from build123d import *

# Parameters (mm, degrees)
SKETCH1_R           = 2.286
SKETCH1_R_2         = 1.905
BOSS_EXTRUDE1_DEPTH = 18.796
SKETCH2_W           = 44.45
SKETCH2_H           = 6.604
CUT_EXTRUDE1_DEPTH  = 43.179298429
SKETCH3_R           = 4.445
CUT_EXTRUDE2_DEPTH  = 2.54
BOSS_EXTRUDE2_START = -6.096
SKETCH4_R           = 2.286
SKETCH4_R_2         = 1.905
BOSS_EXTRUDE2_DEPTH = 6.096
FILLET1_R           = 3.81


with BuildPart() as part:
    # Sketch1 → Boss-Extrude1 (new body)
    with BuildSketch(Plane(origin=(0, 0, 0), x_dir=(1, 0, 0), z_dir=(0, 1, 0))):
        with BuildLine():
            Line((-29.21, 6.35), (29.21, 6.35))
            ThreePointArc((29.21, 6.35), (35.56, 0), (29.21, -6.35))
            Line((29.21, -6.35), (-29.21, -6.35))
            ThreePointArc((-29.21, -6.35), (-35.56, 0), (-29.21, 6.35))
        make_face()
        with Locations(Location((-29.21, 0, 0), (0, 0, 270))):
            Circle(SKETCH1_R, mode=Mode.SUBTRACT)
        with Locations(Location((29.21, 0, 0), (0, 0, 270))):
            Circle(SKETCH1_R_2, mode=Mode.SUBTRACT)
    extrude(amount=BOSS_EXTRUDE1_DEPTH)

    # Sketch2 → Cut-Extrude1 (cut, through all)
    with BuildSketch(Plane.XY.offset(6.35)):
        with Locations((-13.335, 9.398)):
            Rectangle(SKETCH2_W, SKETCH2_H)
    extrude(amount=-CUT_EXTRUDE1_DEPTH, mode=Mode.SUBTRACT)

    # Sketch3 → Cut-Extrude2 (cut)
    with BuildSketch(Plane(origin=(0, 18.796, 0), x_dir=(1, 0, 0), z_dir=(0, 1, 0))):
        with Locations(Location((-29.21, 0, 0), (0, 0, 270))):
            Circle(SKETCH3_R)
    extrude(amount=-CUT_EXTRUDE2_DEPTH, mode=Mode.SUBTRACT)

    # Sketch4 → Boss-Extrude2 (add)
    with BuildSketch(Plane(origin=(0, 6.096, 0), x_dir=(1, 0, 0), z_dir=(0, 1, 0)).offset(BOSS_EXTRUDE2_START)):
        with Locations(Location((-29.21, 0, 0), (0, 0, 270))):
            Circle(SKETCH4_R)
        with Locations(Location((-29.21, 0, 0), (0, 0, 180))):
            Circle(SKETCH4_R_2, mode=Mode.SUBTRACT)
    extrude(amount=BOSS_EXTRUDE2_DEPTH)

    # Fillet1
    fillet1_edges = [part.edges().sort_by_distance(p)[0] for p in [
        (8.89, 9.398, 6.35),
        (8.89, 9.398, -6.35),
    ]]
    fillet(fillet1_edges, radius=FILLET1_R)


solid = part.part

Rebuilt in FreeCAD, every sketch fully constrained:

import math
import FreeCAD as App
import Part
import Sketcher
from FreeCAD import Vector
Q = App.Units.Quantity


def edges_at(feature, points):
    """Names of the edges that pass closest to the given points."""
    edges = feature.Shape.Edges
    near = lambda p: min(range(len(edges)), key=lambda i: edges[i].distToShape(Part.Vertex(*p))[0])
    return sorted({f"Edge{near(p) + 1}" for p in points})

doc = App.newDocument("Part")
params = doc.addObject("Spreadsheet::Sheet", "Params")
for row, (alias, value) in enumerate([
    ("sketch1_diameter", "0.15 in"),
    ("sketch1_diameter2", "0.18 in"),
    ("sketch1_radius", "0.25 in"),
    ("sketch1_width", "2.3 in"),
    ("pad1_length", "0.74 in"),
    ("sketch2_width", "1.75 in"),
    ("sketch2_height", "0.26 in"),
    ("sketch3_diameter", "0.35 in"),
    ("pocket2_length", "0.1 in"),
    ("sketch4_diameter", "0.18 in"),
    ("sketch4_diameter2", "0.15 in"),
    ("pad2_length", "0.24 in"),
    ("fillet_radius", "0.15 in"),
], start=1):
    params.set(f"A{row}", alias)
    params.set(f"B{row}", "=" + value)
    params.setAlias(f"B{row}", alias)

body = doc.addObject("PartDesign::Body", "Body")

# Sketch on XZ plane
sketch1 = body.newObject("Sketcher::SketchObject", "Sketch")
sketch1.AttachmentSupport = (doc.getObject("XZ_Plane"), [""])
sketch1.MapMode = "FlatFace"
sketch1.addGeometry([
    Part.LineSegment(Vector(29.2, -6.3, 0), Vector(-29.2, -6.3, 0)),  # 0
    Part.ArcOfCircle(Part.Circle(Vector(-29.2, 0, 0), Vector(0, 0, 1), 6.3), math.radians(90), math.radians(270)),  # 1
    Part.LineSegment(Vector(-29.2, 6.3, 0), Vector(29.2, 6.3, 0)),  # 2
    Part.ArcOfCircle(Part.Circle(Vector(29.2, 0, 0), Vector(0, 0, 1), 6.3), math.radians(-90), math.radians(90)),  # 3
    Part.Circle(Vector(29.2, 0, 0), Vector(0, 0, 1), 1.9),  # 4
    Part.Circle(Vector(-29.2, 0, 0), Vector(0, 0, 1), 2.3),  # 5
], False)
sketch1.addConstraint([
    Sketcher.Constraint("Tangent", 0, 2, 1, 2),
    Sketcher.Constraint("Tangent", 1, 1, 2, 1),
    Sketcher.Constraint("Tangent", 2, 2, 3, 2),
    Sketcher.Constraint("Tangent", 3, 1, 0, 1),
    Sketcher.Constraint("Horizontal", 0),
    Sketcher.Constraint("Horizontal", 2),
    Sketcher.Constraint("Coincident", 4, 3, 3, 3),
    Sketcher.Constraint("Coincident", 5, 3, 1, 3),
    Sketcher.Constraint("Symmetric", 1, 3, 3, 3, -1, 1),
    Sketcher.Constraint("Diameter", 4, Q("0.15 in")),
    Sketcher.Constraint("Diameter", 5, Q("0.18 in")),
    Sketcher.Constraint("Radius", 1, Q("0.25 in")),
    Sketcher.Constraint("DistanceX", 0, 2, 0, 1, Q("2.3 in")),
])
sketch1.setExpression("Constraints[9]", "Params.sketch1_diameter")
sketch1.setExpression("Constraints[10]", "Params.sketch1_diameter2")
sketch1.setExpression("Constraints[11]", "Params.sketch1_radius")
sketch1.setExpression("Constraints[12]", "Params.sketch1_width")
pad1 = body.newObject("PartDesign::Pad", "Pad")
pad1.Profile = sketch1
pad1.setExpression("Length", "Params.pad1_length")
pad1.Reversed = True

# Sketch on XY plane
sketch2 = body.newObject("Sketcher::SketchObject", "Sketch001")
sketch2.AttachmentSupport = (doc.getObject("XY_Plane"), [""])
sketch2.MapMode = "FlatFace"
sketch2.AttachmentOffset = App.Placement(Vector(0, 0, 0.25 * 25.4), App.Rotation())
sketch2.addGeometry([
    Part.LineSegment(Vector(-36, 13, 0), Vector(-36, 6, 0)),
    Part.LineSegment(Vector(-36, 6, 0), Vector(9, 6, 0)),
    Part.LineSegment(Vector(9, 6, 0), Vector(9, 13, 0)),
    Part.LineSegment(Vector(9, 13, 0), Vector(-36, 13, 0)),
], False)
sketch2.addConstraint([
    Sketcher.Constraint("Coincident", 0, 2, 1, 1),
    Sketcher.Constraint("Coincident", 1, 2, 2, 1),
    Sketcher.Constraint("Coincident", 2, 2, 3, 1),
    Sketcher.Constraint("Coincident", 3, 2, 0, 1),
    Sketcher.Constraint("Vertical", 0),
    Sketcher.Constraint("Horizontal", 1),
    Sketcher.Constraint("Vertical", 2),
    Sketcher.Constraint("Horizontal", 3),
    Sketcher.Constraint("DistanceX", 1, 1, 1, 2, Q("1.75 in")),
    Sketcher.Constraint("DistanceY", 0, 2, 0, 1, Q("0.26 in")),
    Sketcher.Constraint("DistanceX", 0, 2, -1, 1, Q("1.4 in")),
    Sketcher.Constraint("DistanceY", -1, 1, 2, 2, Q("0.5 in")),
])
sketch2.setExpression("Constraints[8]", "Params.sketch2_width")
sketch2.setExpression("Constraints[9]", "Params.sketch2_height")
pocket1 = body.newObject("PartDesign::Pocket", "Pocket")
pocket1.Profile = sketch2
pocket1.Type = "ThroughAll"

# Sketch on XZ plane
sketch3 = body.newObject("Sketcher::SketchObject", "Sketch002")
sketch3.AttachmentSupport = (doc.getObject("XZ_Plane"), [""])
sketch3.MapMode = "FlatFace"
sketch3.AttachmentOffset = App.Placement(Vector(0, 0, -0.74 * 25.4), App.Rotation())
sketch3.addGeometry(Part.Circle(Vector(-29.2, 0, 0), Vector(0, 0, 1), 4.4), False)
sketch3.addConstraint([
    Sketcher.Constraint("PointOnObject", 0, 3, -1),
    Sketcher.Constraint("Diameter", 0, Q("0.35 in")),
    Sketcher.Constraint("DistanceX", 0, 3, -1, 1, Q("1.15 in")),
])
sketch3.setExpression("Constraints[1]", "Params.sketch3_diameter")
pocket2 = body.newObject("PartDesign::Pocket", "Pocket001")
pocket2.Profile = sketch3
pocket2.setExpression("Length", "Params.pocket2_length")
pocket2.Reversed = True

# Sketch on XZ plane
sketch4 = body.newObject("Sketcher::SketchObject", "Sketch003")
sketch4.AttachmentSupport = (doc.getObject("XZ_Plane"), [""])
sketch4.MapMode = "FlatFace"
sketch4.addGeometry([
    Part.Circle(Vector(-29.2, 0, 0), Vector(0, 0, 1), 2.3),
    Part.Circle(Vector(-29.2, 0, 0), Vector(0, 0, 1), 1.9),
], False)
sketch4.addConstraint([
    Sketcher.Constraint("Coincident", 1, 3, 0, 3),
    Sketcher.Constraint("PointOnObject", 0, 3, -1),
    Sketcher.Constraint("Diameter", 0, Q("0.18 in")),
    Sketcher.Constraint("Diameter", 1, Q("0.15 in")),
    Sketcher.Constraint("DistanceX", 0, 3, -1, 1, Q("1.15 in")),
])
sketch4.setExpression("Constraints[2]", "Params.sketch4_diameter")
sketch4.setExpression("Constraints[3]", "Params.sketch4_diameter2")
pad2 = body.newObject("PartDesign::Pad", "Pad001")
pad2.Profile = sketch4
pad2.setExpression("Length", "Params.pad2_length")
pad2.Reversed = True
doc.recompute()

fillet = body.newObject("PartDesign::Fillet", "Fillet")
fillet.Base = (pad2, edges_at(pad2, [(8.89, 9.398, 6.35), (8.89, 9.398, -6.35)]))
fillet.setExpression("Radius", "Params.fillet_radius")

doc.recompute()
